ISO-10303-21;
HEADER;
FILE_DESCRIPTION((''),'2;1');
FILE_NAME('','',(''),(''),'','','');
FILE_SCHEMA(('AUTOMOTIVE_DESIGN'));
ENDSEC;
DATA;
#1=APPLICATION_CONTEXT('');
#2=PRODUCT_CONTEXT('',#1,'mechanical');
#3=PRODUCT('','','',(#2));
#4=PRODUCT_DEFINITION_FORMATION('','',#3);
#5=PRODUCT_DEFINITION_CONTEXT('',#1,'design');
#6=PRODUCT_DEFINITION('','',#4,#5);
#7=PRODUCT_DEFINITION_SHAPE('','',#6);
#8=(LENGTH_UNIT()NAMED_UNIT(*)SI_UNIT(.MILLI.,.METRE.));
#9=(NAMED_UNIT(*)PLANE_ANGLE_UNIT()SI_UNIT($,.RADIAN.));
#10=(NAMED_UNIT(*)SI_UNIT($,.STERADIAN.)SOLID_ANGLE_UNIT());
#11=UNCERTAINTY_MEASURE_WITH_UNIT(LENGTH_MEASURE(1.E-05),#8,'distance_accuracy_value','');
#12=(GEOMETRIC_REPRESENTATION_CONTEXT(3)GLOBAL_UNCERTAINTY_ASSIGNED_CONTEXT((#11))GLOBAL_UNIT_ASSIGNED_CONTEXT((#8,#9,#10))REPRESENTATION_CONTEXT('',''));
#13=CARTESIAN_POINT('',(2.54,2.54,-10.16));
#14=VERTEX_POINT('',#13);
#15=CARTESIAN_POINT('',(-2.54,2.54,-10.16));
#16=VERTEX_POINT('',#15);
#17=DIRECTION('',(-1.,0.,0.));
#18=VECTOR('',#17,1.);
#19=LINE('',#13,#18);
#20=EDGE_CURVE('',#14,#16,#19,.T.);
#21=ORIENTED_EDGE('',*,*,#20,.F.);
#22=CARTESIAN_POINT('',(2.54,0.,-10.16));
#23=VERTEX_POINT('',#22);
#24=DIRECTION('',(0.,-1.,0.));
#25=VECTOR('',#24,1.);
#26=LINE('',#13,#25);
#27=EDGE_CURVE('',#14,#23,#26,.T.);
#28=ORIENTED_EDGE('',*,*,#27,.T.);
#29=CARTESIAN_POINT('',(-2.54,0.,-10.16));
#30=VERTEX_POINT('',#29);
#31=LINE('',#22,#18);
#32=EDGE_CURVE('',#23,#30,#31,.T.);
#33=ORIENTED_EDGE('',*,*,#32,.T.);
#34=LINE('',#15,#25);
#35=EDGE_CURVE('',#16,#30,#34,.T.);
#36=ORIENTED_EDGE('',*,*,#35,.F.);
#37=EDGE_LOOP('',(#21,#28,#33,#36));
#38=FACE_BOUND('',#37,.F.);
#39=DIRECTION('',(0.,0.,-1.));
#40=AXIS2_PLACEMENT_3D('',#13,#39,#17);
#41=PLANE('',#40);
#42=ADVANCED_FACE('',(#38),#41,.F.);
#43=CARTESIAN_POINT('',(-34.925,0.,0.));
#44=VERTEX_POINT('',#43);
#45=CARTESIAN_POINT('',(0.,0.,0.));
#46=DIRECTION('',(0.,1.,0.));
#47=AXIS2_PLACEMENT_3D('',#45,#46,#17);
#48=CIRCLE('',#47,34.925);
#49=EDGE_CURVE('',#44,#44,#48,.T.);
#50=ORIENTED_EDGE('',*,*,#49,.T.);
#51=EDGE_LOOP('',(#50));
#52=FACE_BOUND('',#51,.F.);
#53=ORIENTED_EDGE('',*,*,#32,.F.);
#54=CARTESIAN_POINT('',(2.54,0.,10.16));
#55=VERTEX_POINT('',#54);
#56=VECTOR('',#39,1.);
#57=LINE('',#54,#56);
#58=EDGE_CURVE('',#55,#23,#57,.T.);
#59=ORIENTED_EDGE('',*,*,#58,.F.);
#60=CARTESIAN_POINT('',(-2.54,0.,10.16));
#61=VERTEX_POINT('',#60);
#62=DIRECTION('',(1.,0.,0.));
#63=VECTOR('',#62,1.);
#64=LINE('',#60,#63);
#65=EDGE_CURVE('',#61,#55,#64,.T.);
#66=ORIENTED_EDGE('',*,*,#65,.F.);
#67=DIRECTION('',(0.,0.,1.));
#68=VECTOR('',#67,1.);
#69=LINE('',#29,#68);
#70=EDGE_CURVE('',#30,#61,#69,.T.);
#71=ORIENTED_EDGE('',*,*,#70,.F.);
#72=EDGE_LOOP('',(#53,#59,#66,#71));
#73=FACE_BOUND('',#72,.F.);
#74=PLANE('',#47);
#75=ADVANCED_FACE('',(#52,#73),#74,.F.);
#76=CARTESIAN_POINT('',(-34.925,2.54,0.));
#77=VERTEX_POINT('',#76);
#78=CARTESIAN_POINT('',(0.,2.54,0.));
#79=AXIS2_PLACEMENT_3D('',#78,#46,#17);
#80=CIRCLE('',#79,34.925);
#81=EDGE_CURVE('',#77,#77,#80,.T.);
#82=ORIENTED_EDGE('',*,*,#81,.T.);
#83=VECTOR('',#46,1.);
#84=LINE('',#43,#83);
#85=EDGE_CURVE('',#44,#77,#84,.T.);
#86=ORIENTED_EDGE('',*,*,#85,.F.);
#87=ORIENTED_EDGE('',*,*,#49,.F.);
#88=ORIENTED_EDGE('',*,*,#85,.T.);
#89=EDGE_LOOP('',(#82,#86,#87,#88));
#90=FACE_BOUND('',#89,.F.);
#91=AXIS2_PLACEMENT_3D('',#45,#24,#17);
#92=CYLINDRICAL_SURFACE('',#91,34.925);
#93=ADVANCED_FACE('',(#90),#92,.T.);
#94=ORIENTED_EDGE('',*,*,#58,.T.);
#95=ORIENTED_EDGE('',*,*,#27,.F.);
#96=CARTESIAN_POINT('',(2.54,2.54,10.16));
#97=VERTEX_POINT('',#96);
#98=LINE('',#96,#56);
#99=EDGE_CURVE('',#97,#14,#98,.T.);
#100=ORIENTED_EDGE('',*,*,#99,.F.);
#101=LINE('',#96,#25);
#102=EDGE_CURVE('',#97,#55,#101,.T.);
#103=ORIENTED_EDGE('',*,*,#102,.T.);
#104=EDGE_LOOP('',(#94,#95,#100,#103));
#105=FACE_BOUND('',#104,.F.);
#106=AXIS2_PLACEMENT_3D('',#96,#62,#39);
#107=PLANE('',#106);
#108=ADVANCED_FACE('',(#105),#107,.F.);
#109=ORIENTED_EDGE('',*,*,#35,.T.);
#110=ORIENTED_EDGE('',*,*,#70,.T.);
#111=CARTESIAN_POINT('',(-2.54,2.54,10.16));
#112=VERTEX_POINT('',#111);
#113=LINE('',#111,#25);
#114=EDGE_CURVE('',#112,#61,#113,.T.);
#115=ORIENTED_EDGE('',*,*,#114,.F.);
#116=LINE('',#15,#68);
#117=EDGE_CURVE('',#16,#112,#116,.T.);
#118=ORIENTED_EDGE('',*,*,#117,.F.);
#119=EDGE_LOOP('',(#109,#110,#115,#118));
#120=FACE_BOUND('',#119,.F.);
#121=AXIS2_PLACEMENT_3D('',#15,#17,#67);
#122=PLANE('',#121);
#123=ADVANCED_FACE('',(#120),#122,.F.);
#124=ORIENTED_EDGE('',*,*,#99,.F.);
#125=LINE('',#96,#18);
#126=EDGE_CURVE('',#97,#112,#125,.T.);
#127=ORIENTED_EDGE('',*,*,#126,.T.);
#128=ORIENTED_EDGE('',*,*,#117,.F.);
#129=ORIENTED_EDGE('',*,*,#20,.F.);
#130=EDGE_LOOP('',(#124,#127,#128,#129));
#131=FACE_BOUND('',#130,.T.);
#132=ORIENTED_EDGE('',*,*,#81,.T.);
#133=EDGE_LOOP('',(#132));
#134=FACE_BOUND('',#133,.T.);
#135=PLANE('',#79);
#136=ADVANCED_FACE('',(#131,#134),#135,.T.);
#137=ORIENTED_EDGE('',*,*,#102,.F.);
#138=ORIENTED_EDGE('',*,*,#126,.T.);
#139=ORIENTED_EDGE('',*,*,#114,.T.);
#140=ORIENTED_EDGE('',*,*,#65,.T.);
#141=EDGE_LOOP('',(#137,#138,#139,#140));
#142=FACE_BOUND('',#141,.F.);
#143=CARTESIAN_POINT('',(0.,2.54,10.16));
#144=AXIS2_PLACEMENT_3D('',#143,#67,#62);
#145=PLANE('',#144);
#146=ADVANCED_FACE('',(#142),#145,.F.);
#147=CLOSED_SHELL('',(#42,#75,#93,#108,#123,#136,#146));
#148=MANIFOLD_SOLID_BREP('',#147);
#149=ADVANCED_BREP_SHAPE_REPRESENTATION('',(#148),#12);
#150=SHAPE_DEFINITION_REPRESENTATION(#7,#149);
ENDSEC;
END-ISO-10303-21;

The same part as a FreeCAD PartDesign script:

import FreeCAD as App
import Part
import Sketcher
from FreeCAD import Vector
Q = App.Units.Quantity


def add_polygon(sketch, points):
    """Adds a closed chain of lines whose ends are joined by coincident constraints."""
    first, n = sketch.GeometryCount, len(points)
    for a, b in zip(points, points[1:] + points[:1]):
        sketch.addGeometry(Part.LineSegment(App.Vector(*a, 0), App.Vector(*b, 0)), False)
    for i in range(n):
        sketch.addConstraint(Sketcher.Constraint("Coincident", first + i, 2, first + (i + 1) % n, 1))

doc = App.newDocument("Part")
body = doc.addObject("PartDesign::Body", "Body")

# Sketch on XZ plane
sketch1 = body.newObject("Sketcher::SketchObject", "Sketch")
sketch1.AttachmentSupport = (doc.getObject("XZ_Plane"), [""])
sketch1.MapMode = "FlatFace"
sketch1.addGeometry(Part.Circle(Vector(0, 0, 0), Vector(0, 0, 1), 35), False)
sketch1.addConstraint(Sketcher.Constraint("Coincident", 0, 3, -1, 1))
sketch1.addConstraint(Sketcher.Constraint("Diameter", 0, Q("2.75 in")))
pad1 = body.newObject("PartDesign::Pad", "Pad")
pad1.Profile = sketch1
pad1.Length = Q("0.1 in")
pad1.Reversed = True

# Sketch on XZ plane
sketch2 = body.newObject("Sketcher::SketchObject", "Sketch001")
sketch2.AttachmentSupport = (doc.getObject("XZ_Plane"), [""])
sketch2.MapMode = "FlatFace"
sketch2.AttachmentOffset = App.Placement(Vector(0, 0, -0.1 * 25.4), App.Rotation())
add_polygon(sketch2, [(-3, 10), (3, 10), (3, -10), (-3, -10)])  # lines 0-3
sketch2.addConstraint(Sketcher.Constraint("Horizontal", 0))
sketch2.addConstraint(Sketcher.Constraint("Vertical", 1))
sketch2.addConstraint(Sketcher.Constraint("Horizontal", 2))
sketch2.addConstraint(Sketcher.Constraint("Vertical", 3))
sketch2.addConstraint(Sketcher.Constraint("Symmetric", 0, 2, 2, 2, -1, 1))
sketch2.addConstraint(Sketcher.Constraint("DistanceX", 0, 1, 0, 2, Q("0.2 in")))
sketch2.addConstraint(Sketcher.Constraint("DistanceY", 1, 2, 1, 1, Q("0.8 in")))
pocket1 = body.newObject("PartDesign::Pocket", "Pocket")
pocket1.Profile = sketch2
pocket1.Length = Q("0.1 in")
pocket1.Reversed = True

doc.recompute()
